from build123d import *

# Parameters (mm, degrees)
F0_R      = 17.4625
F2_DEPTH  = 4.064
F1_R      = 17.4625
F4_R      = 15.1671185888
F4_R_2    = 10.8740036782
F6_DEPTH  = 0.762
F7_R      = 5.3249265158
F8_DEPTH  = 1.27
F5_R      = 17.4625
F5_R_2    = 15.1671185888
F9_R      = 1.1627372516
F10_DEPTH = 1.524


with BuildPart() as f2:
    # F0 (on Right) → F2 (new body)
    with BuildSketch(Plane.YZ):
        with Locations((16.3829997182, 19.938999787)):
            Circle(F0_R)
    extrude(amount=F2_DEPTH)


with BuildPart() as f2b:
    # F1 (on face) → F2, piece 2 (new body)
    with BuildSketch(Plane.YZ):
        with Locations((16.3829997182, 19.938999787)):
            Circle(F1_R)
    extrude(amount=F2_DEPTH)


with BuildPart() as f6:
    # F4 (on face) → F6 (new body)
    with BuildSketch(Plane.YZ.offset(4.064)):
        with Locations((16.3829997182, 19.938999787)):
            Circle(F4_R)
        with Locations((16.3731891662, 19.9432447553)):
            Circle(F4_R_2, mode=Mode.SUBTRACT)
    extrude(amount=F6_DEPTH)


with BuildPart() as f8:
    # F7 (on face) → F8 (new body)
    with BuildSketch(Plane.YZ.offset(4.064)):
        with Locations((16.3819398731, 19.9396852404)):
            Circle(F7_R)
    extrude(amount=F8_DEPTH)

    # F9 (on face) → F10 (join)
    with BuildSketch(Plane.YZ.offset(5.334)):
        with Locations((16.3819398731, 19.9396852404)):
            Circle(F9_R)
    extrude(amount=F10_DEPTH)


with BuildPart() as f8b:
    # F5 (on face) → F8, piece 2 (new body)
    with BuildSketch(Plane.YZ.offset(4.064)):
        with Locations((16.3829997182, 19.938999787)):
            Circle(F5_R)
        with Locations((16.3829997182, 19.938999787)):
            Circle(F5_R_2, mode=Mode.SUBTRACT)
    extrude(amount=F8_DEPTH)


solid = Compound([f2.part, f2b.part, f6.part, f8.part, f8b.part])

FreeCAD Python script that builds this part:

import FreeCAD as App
import Part
import Sketcher
from FreeCAD import Vector
Q = App.Units.Quantity

doc = App.newDocument("Part")
params = doc.addObject("Spreadsheet::Sheet", "Params")
for row, (alias, value) in enumerate([
    ("sketch1_diameter", "1.375 in"),
    ("pad1_length", "0.16 in"),
    ("sketch2_diameter", "1.375 in"),
    ("pad2_length", "0.16 in"),
    ("pad3_length", "0.03 in"),
    ("pad4_length", "0.05 in"),
    ("pad5_length", "0.06 in"),
    ("sketch6_diameter", "1.375 in"),
    ("pad6_length", "0.05 in"),
], start=1):
    params.set(f"A{row}", alias)
    params.set(f"B{row}", "=" + value)
    params.setAlias(f"B{row}", alias)

body = doc.addObject("PartDesign::Body", "Body")

# Sketch on YZ plane
sketch1 = body.newObject("Sketcher::SketchObject", "Sketch")
sketch1.AttachmentSupport = (doc.getObject("YZ_Plane"), [""])
sketch1.MapMode = "FlatFace"
sketch1.addGeometry(Part.Circle(Vector(16, 20, 0), Vector(0, 0, 1), 17), False)
sketch1.addConstraint(Sketcher.Constraint("Diameter", 0, Q("1.375 in")))
sketch1.addConstraint(Sketcher.Constraint("DistanceX", -1, 1, 0, 3, Q("0.645 in")))
sketch1.addConstraint(Sketcher.Constraint("DistanceY", -1, 1, 0, 3, Q("0.785 in")))
sketch1.setExpression("Constraints[0]", "Params.sketch1_diameter")
pad1 = body.newObject("PartDesign::Pad", "Pad")
pad1.Profile = sketch1
pad1.setExpression("Length", "Params.pad1_length")
body2 = doc.addObject("PartDesign::Body", "Body001")

# Sketch on YZ plane
sketch2 = body2.newObject("Sketcher::SketchObject", "Sketch001")
sketch2.AttachmentSupport = (doc.getObject("YZ_Plane001"), [""])
sketch2.MapMode = "FlatFace"
sketch2.addGeometry(Part.Circle(Vector(16, 20, 0), Vector(0, 0, 1), 17), False)
sketch2.addConstraint(Sketcher.Constraint("Diameter", 0, Q("1.375 in")))
sketch2.addConstraint(Sketcher.Constraint("DistanceX", -1, 1, 0, 3, Q("0.645 in")))
sketch2.addConstraint(Sketcher.Constraint("DistanceY", -1, 1, 0, 3, Q("0.785 in")))
sketch2.setExpression("Constraints[0]", "Params.sketch2_diameter")
pad2 = body2.newObject("PartDesign::Pad", "Pad001")
pad2.Profile = sketch2
pad2.setExpression("Length", "Params.pad2_length")
body3 = doc.addObject("PartDesign::Body", "Body002")

# Sketch on YZ plane
sketch3 = body3.newObject("Sketcher::SketchObject", "Sketch002")
sketch3.AttachmentSupport = (doc.getObject("YZ_Plane002"), [""])
sketch3.MapMode = "FlatFace"
sketch3.AttachmentOffset = App.Placement(Vector(0, 0, 0.16 * 25.4), App.Rotation())
sketch3.addGeometry(Part.Circle(Vector(16, 20, 0), Vector(0, 0, 1), 15), False)
sketch3.addGeometry(Part.Circle(Vector(16, 20, 0), Vector(0, 0, 1), 11), False)
sketch3.addConstraint(Sketcher.Constraint("DistanceX", -1, 1, 0, 3, Q("0.645 in")))
sketch3.addConstraint(Sketcher.Constraint("DistanceY", -1, 1, 0, 3, Q("0.785 in")))
sketch3.addConstraint(Sketcher.Constraint("Diameter", 0, Q("30.334237 mm")))
sketch3.addConstraint(Sketcher.Constraint("Diameter", 1, Q("21.748007 mm")))
sketch3.addConstraint(Sketcher.Constraint("DistanceX", -1, 1, 1, 3, Q("16.373189 mm")))
sketch3.addConstraint(Sketcher.Constraint("DistanceY", -1, 1, 1, 3, Q("19.943245 mm")))
pad3 = body3.newObject("PartDesign::Pad", "Pad002")
pad3.Profile = sketch3
pad3.setExpression("Length", "Params.pad3_length")
body4 = doc.addObject("PartDesign::Body", "Body003")

# Sketch on YZ plane
sketch4 = body4.newObject("Sketcher::SketchObject", "Sketch003")
sketch4.AttachmentSupport = (doc.getObject("YZ_Plane003"), [""])
sketch4.MapMode = "FlatFace"
sketch4.AttachmentOffset = App.Placement(Vector(0, 0, 0.16 * 25.4), App.Rotation())
sketch4.addGeometry(Part.Circle(Vector(16, 20, 0), Vector(0, 0, 1), 5), False)
sketch4.addConstraint(Sketcher.Constraint("Diameter", 0, Q("10.649853 mm")))
sketch4.addConstraint(Sketcher.Constraint("DistanceX", -1, 1, 0, 3, Q("16.38194 mm")))
sketch4.addConstraint(Sketcher.Constraint("DistanceY", -1, 1, 0, 3, Q("19.939685 mm")))
pad4 = body4.newObject("PartDesign::Pad", "Pad003")
pad4.Profile = sketch4
pad4.setExpression("Length", "Params.pad4_length")

# Sketch on YZ plane
sketch5 = body4.newObject("Sketcher::SketchObject", "Sketch004")
sketch5.AttachmentSupport = (doc.getObject("YZ_Plane003"), [""])
sketch5.MapMode = "FlatFace"
sketch5.AttachmentOffset = App.Placement(Vector(0, 0, 0.21 * 25.4), App.Rotation())
sketch5.addGeometry(Part.Circle(Vector(16.4, 19.9, 0), Vector(0, 0, 1), 1.2), False)
sketch5.addConstraint(Sketcher.Constraint("Diameter", 0, Q("2.325475 mm")))
sketch5.addConstraint(Sketcher.Constraint("DistanceX", -1, 1, 0, 3, Q("16.38194 mm")))
sketch5.addConstraint(Sketcher.Constraint("DistanceY", -1, 1, 0, 3, Q("19.939685 mm")))
pad5 = body4.newObject("PartDesign::Pad", "Pad004")
pad5.Profile = sketch5
pad5.setExpression("Length", "Params.pad5_length")
body5 = doc.addObject("PartDesign::Body", "Body004")

# Sketch on YZ plane
sketch6 = body5.newObject("Sketcher::SketchObject", "Sketch005")
sketch6.AttachmentSupport = (doc.getObject("YZ_Plane004"), [""])
sketch6.MapMode = "FlatFace"
sketch6.AttachmentOffset = App.Placement(Vector(0, 0, 0.16 * 25.4), App.Rotation())
sketch6.addGeometry(Part.Circle(Vector(16, 20, 0), Vector(0, 0, 1), 17), False)
sketch6.addGeometry(Part.Circle(Vector(16, 20, 0), Vector(0, 0, 1), 15), False)
sketch6.addConstraint(Sketcher.Constraint("Coincident", 1, 3, 0, 3))
sketch6.addConstraint(Sketcher.Constraint("Diameter", 0, Q("1.375 in")))
sketch6.addConstraint(Sketcher.Constraint("DistanceX", -1, 1, 0, 3, Q("0.645 in")))
sketch6.addConstraint(Sketcher.Constraint("DistanceY", -1, 1, 0, 3, Q("0.785 in")))
sketch6.addConstraint(Sketcher.Constraint("Diameter", 1, Q("30.334237 mm")))
sketch6.setExpression("Constraints[1]", "Params.sketch6_diameter")
pad6 = body5.newObject("PartDesign::Pad", "Pad005")
pad6.Profile = sketch6
pad6.setExpression("Length", "Params.pad6_length")

doc.recompute()
